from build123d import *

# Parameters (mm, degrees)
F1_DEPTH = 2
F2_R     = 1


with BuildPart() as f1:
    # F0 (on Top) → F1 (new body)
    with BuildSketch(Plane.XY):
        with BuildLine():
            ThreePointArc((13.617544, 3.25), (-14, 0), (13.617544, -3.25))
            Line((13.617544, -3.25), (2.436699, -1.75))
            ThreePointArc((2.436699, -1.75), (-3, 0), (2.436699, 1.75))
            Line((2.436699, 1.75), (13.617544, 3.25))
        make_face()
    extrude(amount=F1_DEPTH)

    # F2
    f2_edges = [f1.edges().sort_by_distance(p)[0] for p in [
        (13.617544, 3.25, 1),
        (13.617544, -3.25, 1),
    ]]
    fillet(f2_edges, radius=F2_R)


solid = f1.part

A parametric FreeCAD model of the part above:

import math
import FreeCAD as App
import Part
import Sketcher
from FreeCAD import Vector
Q = App.Units.Quantity


def edges_at(feature, points):
    """Names of the edges that pass closest to the given points."""
    edges = feature.Shape.Edges
    near = lambda p: min(range(len(edges)), key=lambda i: edges[i].distToShape(Part.Vertex(*p))[0])
    return sorted({f"Edge{near(p) + 1}" for p in points})

doc = App.newDocument("Part")
body = doc.addObject("PartDesign::Body", "Body")

# Sketch on XY plane
sketch1 = body.newObject("Sketcher::SketchObject", "Sketch")
sketch1.AttachmentSupport = (doc.getObject("XY_Plane"), [""])
sketch1.MapMode = "FlatFace"
sketch1.addGeometry([
    Part.ArcOfCircle(Part.Circle(Vector(0, 0, 0), Vector(0, 0, 1), 14), math.radians(13.423264), math.radians(346.576736)),
    Part.LineSegment(Vector(13.617544, -3.25, 0), Vector(2.436699, -1.75, 0)),
    Part.ArcOfCircle(Part.Circle(Vector(0, 0, 0), Vector(0, 0, 1), 3), math.radians(35.685332), math.radians(324.314668)),
    Part.LineSegment(Vector(2.436699, 1.75, 0), Vector(13.617544, 3.25, 0)),
], False)
sketch1.addConstraint([
    Sketcher.Constraint("Coincident", 0, 2, 1, 1),
    Sketcher.Constraint("Coincident", 1, 2, 2, 2),
    Sketcher.Constraint("Coincident", 2, 1, 3, 1),
    Sketcher.Constraint("Coincident", 3, 2, 0, 1),
    Sketcher.Constraint("Coincident", 0, 3, -1, 1),
    Sketcher.Constraint("Coincident", 2, 3, -1, 1),
    Sketcher.Constraint("Vertical", 1, 2, 2, 1),
    Sketcher.Constraint("Vertical", 0, 2, 3, 2),
    Sketcher.Constraint("Radius", 0, Q("14 mm")),
    Sketcher.Constraint("Radius", 2, Q("3 mm")),
    Sketcher.Constraint("DistanceY", 0, 2, 2, 1, Q("5 mm")),
    Sketcher.Constraint("DistanceY", 0, 2, 1, 2, Q("1.5 mm")),
])
pad1 = body.newObject("PartDesign::Pad", "Pad")
pad1.Profile = sketch1
pad1.Length = 2
doc.recompute()

fillet = body.newObject("PartDesign::Fillet", "Fillet")
fillet.Base = (pad1, edges_at(pad1, [(13.618, 3.25, 1), (13.618, -3.25, 1)]))
fillet.Radius = 1

doc.recompute()
